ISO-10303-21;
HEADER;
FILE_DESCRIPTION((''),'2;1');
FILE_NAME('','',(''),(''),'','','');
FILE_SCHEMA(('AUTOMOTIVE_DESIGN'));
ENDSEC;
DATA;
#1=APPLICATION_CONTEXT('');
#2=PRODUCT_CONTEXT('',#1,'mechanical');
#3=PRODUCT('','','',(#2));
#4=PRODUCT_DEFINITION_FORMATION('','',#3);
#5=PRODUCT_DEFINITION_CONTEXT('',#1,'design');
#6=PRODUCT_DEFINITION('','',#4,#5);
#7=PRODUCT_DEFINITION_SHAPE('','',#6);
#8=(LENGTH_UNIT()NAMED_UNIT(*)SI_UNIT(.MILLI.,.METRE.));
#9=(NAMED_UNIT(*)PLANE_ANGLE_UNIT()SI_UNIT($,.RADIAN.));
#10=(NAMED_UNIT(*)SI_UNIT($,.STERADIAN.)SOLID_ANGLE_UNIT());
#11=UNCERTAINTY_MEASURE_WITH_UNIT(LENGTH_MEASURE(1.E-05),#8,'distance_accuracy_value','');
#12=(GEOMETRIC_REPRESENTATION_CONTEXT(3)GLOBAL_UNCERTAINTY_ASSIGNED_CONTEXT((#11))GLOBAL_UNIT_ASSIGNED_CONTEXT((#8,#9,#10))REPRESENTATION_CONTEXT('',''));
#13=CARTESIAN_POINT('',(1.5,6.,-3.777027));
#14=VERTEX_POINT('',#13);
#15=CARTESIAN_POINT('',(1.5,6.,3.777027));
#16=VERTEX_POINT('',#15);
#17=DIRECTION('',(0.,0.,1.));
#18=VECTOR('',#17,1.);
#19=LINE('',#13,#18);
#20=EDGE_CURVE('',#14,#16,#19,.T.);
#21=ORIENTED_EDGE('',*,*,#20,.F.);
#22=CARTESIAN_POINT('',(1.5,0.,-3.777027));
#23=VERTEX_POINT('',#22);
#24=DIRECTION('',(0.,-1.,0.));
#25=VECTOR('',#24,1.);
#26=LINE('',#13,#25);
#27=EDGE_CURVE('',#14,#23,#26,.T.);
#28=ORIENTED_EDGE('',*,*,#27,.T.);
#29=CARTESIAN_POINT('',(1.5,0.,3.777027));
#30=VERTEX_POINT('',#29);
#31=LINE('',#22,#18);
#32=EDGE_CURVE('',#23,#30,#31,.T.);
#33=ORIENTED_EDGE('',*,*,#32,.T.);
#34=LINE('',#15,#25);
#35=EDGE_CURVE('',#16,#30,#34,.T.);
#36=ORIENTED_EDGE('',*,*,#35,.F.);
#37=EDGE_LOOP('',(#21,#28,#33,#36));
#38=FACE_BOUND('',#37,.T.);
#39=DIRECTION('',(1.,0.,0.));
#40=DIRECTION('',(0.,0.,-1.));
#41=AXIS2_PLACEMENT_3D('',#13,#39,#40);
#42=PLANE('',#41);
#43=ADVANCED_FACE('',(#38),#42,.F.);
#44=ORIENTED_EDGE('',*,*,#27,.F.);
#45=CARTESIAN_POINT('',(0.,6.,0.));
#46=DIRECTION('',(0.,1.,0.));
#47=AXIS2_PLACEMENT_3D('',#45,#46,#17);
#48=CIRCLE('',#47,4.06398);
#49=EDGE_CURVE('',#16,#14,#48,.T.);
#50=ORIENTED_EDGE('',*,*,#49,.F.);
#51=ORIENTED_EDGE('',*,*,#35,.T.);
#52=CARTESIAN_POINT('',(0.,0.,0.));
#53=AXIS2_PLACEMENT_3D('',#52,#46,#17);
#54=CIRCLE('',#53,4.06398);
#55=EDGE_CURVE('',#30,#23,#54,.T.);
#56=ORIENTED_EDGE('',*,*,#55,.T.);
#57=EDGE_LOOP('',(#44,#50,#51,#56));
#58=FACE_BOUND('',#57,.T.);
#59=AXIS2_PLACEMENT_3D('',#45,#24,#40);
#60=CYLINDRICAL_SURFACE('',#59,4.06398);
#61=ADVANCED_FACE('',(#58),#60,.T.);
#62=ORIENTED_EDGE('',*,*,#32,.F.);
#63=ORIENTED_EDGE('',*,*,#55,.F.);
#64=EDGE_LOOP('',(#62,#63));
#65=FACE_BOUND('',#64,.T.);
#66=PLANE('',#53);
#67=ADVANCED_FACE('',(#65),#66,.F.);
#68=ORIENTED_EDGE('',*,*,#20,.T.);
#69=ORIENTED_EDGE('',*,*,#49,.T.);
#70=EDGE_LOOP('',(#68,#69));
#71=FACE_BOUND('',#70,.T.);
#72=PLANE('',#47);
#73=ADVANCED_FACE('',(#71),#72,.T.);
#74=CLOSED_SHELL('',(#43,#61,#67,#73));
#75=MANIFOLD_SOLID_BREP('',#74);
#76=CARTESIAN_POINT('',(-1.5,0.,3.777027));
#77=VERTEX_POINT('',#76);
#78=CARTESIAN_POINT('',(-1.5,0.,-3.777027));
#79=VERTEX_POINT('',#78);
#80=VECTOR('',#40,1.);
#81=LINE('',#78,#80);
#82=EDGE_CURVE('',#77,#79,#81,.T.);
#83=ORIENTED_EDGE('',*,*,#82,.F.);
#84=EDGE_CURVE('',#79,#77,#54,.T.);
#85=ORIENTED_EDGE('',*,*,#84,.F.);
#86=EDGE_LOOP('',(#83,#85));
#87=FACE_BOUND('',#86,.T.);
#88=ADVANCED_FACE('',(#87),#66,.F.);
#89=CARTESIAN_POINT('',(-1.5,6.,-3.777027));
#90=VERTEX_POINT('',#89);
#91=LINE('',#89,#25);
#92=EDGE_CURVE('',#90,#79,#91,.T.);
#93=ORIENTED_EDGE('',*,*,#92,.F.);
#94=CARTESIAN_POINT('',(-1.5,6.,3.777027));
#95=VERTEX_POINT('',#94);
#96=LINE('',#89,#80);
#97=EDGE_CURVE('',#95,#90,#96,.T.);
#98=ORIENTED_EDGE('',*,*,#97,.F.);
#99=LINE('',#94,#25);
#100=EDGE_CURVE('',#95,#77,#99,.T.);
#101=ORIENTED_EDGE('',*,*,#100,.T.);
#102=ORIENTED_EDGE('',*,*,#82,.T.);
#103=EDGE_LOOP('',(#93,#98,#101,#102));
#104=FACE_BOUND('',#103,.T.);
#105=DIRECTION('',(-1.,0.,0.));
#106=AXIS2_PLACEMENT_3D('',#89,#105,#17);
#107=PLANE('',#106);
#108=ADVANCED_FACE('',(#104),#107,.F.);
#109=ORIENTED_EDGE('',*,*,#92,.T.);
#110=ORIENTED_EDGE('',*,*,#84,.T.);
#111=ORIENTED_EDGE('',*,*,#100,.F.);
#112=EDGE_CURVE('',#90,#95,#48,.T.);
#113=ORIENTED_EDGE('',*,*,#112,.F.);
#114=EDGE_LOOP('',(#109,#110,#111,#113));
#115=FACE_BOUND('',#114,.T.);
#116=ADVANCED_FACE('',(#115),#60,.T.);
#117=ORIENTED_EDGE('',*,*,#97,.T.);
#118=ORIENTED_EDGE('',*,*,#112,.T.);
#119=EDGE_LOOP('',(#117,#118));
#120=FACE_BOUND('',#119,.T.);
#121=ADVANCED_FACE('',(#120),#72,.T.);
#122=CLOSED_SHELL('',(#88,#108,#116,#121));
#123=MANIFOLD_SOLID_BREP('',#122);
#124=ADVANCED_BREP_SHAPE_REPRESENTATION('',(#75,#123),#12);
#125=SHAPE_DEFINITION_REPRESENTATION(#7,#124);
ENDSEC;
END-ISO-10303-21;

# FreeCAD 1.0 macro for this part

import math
import FreeCAD as App
import Part
import Sketcher

V = App.Vector
Q = App.Units.Quantity

doc = App.newDocument("Part")
body = doc.addObject("PartDesign::Body", "Body")

# Sketch on XZ plane
sketch1 = body.newObject("Sketcher::SketchObject", "Sketch")
sketch1.AttachmentSupport = (doc.getObject("XZ_Plane"), [""])
sketch1.MapMode = "FlatFace"
sketch1.addGeometry([
    Part.LineSegment(V(-1.5, 3.8, 0), V(-1.5, -3.8, 0)),
    Part.ArcOfCircle(Part.Circle(V(0, 0, 0), V(0, 0, 1), 4.1), math.radians(112), math.radians(248)),
], False)
sketch1.addConstraint([
    Sketcher.Constraint("Coincident", 0, 1, 1, 1),
    Sketcher.Constraint("Coincident", 1, 2, 0, 2),
    Sketcher.Constraint("Vertical", 0),
    Sketcher.Constraint("Coincident", 1, 3, -1, 1),
    Sketcher.Constraint("DistanceX", 0, 1, -1, 1, Q("1.5 mm")),
    Sketcher.Constraint("Radius", 1, Q("4.06398 mm")),
])
pad1 = body.newObject("PartDesign::Pad", "Pad")
pad1.Profile = sketch1
pad1.Length = 6
pad1.Reversed = True
body2 = doc.addObject("PartDesign::Body", "Body001")

# Sketch on XZ plane
sketch2 = body2.newObject("Sketcher::SketchObject", "Sketch001")
sketch2.AttachmentSupport = (doc.getObject("XZ_Plane001"), [""])
sketch2.MapMode = "FlatFace"
sketch2.addGeometry([
    Part.LineSegment(V(1.5, -3.8, 0), V(1.5, 3.8, 0)),
    Part.ArcOfCircle(Part.Circle(V(0, 0, 0), V(0, 0, 1), 4.1), math.radians(-68), math.radians(68)),
], False)
sketch2.addConstraint([
    Sketcher.Constraint("Coincident", 0, 1, 1, 1),
    Sketcher.Constraint("Coincident", 1, 2, 0, 2),
    Sketcher.Constraint("Vertical", 0),
    Sketcher.Constraint("Coincident", 1, 3, -1, 1),
    Sketcher.Constraint("DistanceX", -1, 1, 0, 1, Q("1.5 mm")),
    Sketcher.Constraint("Radius", 1, Q("4.06398 mm")),
])
pad2 = body2.newObject("PartDesign::Pad", "Pad001")
pad2.Profile = sketch2
pad2.Length = 6
pad2.Reversed = True

doc.recompute()
